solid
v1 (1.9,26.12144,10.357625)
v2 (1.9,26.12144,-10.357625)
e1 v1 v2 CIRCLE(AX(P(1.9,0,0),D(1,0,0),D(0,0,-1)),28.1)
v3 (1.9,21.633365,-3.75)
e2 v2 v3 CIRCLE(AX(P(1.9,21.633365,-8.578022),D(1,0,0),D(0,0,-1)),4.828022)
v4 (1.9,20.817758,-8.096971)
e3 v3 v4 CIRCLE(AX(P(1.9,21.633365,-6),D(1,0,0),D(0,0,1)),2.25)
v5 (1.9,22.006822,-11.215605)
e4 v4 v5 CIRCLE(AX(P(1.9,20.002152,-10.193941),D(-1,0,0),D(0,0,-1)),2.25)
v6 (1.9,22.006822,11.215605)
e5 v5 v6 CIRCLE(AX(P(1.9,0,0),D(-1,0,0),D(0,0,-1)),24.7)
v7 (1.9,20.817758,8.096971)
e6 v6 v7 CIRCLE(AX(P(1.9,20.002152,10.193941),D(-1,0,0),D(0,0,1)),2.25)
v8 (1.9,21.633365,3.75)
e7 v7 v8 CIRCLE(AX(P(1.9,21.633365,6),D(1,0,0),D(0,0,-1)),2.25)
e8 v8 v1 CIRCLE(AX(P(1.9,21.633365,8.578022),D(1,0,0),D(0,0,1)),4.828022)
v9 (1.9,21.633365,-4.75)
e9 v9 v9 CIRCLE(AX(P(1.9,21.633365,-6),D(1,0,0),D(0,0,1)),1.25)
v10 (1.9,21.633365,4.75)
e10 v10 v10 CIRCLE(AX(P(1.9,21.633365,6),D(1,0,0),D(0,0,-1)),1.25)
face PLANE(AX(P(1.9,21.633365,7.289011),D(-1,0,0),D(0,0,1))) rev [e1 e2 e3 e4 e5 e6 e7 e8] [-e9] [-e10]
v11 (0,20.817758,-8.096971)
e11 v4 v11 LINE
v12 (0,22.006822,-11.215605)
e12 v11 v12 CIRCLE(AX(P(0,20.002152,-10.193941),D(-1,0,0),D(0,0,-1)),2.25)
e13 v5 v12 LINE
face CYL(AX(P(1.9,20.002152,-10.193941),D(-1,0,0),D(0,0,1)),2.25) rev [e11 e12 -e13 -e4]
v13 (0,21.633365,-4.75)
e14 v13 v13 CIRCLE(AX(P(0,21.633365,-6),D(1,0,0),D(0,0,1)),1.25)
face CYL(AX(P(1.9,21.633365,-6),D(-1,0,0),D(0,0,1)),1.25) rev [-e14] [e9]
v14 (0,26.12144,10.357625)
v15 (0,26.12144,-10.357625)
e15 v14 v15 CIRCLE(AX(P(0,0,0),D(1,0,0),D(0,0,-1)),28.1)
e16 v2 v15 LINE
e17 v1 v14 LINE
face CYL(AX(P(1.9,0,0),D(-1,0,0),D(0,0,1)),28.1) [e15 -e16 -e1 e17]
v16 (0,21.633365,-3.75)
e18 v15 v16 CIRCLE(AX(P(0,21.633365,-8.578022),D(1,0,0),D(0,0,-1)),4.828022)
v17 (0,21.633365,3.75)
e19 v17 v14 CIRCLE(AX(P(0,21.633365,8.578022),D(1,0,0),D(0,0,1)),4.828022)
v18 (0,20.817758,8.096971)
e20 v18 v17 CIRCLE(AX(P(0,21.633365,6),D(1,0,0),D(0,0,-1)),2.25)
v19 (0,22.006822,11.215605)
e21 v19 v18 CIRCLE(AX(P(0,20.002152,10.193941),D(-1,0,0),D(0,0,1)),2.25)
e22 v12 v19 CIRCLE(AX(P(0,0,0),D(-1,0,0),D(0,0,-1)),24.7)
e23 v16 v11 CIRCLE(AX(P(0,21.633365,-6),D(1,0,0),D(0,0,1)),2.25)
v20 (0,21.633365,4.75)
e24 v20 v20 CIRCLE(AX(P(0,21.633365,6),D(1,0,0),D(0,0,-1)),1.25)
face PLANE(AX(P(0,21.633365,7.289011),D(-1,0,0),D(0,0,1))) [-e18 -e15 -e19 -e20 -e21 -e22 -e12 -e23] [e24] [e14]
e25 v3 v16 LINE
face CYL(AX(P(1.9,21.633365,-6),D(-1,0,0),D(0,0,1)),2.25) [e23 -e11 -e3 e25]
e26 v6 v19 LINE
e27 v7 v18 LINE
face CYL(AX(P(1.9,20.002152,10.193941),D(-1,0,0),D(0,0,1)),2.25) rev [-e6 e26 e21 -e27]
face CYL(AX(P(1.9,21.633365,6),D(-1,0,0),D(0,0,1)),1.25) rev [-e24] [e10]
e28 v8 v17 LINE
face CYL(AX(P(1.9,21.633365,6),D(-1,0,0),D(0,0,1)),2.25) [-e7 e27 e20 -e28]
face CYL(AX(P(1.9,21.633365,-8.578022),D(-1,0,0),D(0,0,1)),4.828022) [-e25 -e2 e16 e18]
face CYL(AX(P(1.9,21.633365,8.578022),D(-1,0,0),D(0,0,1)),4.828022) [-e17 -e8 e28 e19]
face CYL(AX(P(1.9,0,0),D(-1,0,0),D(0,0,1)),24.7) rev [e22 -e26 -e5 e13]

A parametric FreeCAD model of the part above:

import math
import FreeCAD as App
import Part
import Sketcher

V = App.Vector

doc = App.newDocument("Part")
body = doc.addObject("PartDesign::Body", "Body")

sketch1 = body.newObject("Sketcher::SketchObject", "Sketch")
sketch1.AttachmentSupport = (doc.getObject("YZ_Plane"), [""])
sketch1.MapMode = "FlatFace"
sketch1.addGeometry([
    Part.ArcOfCircle(Part.Circle(V(0, 0, 0), V(0, 0, 1), 28.1), math.radians(22), math.radians(338)),
    Part.ArcOfCircle(Part.Circle(V(21.6, -8.6, 0), V(0, 0, 1), 4.8), math.radians(-22), math.radians(90)),
    Part.ArcOfCircle(Part.Circle(V(21.6, -6, 0), V(0, 0, 1), 2.2), math.radians(90), math.radians(249)),
    Part.ArcOfCircle(Part.Circle(V(20, -10.2, 0), V(0, 0, 1), 2.2), math.radians(-27), math.radians(69)),
    Part.ArcOfCircle(Part.Circle(V(0, 0, 0), V(0, 0, 1), 24.7), math.radians(27), math.radians(333)),
    Part.ArcOfCircle(Part.Circle(V(20, 10.2, 0), V(0, 0, 1), 2.2), math.radians(-69), math.radians(27)),
    Part.ArcOfCircle(Part.Circle(V(21.6, 6, 0), V(0, 0, 1), 2.2), math.radians(111), math.radians(270)),
    Part.ArcOfCircle(Part.Circle(V(21.6, 8.6, 0), V(0, 0, 1), 4.8), math.radians(-90), math.radians(22)),
    Part.Circle(V(21.6, 6, 0), V(0, 0, 1), 1.2),
    Part.Circle(V(21.6, -6, 0), V(0, 0, 1), 1.2),
], False)
sketch1.addConstraint([
    Sketcher.Constraint("Tangent", 0, 2, 1, 1),
    Sketcher.Constraint("Tangent", 1, 2, 2, 1),
    Sketcher.Constraint("Tangent", 2, 2, 3, 2),
    Sketcher.Constraint("Tangent", 3, 1, 4, 2),
    Sketcher.Constraint("Tangent", 4, 1, 5, 2),
    Sketcher.Constraint("Tangent", 5, 1, 6, 1),
    Sketcher.Constraint("Tangent", 6, 2, 7, 1),
    Sketcher.Constraint("Tangent", 7, 2, 0, 1),
    Sketcher.Constraint("Coincident", 0, 3, -1, 1),
    Sketcher.Constraint("Coincident", 4, 3, -1, 1),
    Sketcher.Constraint("Coincident", 8, 3, 6, 3),
    Sketcher.Constraint("Coincident", 9, 3, 2, 3),
    Sketcher.Constraint("Equal", 2, 3),
    Sketcher.Constraint("Equal", 3, 5),
    Sketcher.Constraint("Equal", 5, 6),
    Sketcher.Constraint("Equal", 1, 7),
    Sketcher.Constraint("Equal", 8, 9),
    Sketcher.Constraint("Symmetric", 2, 3, 6, 3, -1),
    Sketcher.Constraint("Vertical", 1, 3, 2, 3),
    Sketcher.Constraint("Diameter", 8, 2.5),
    Sketcher.Constraint("Radius", 0, 28.1),
    Sketcher.Constraint("Radius", 4, 24.7),
    Sketcher.Constraint("Radius", 2, 2.25),
    Sketcher.Constraint("DistanceY", 2, 3, -1, 1, 6.0),
    Sketcher.Constraint("Radius", 1, 4.828022),
])
pad1 = body.newObject("PartDesign::Pad", "Pad")
pad1.Profile = sketch1
pad1.Length = 1.9

doc.recompute()
